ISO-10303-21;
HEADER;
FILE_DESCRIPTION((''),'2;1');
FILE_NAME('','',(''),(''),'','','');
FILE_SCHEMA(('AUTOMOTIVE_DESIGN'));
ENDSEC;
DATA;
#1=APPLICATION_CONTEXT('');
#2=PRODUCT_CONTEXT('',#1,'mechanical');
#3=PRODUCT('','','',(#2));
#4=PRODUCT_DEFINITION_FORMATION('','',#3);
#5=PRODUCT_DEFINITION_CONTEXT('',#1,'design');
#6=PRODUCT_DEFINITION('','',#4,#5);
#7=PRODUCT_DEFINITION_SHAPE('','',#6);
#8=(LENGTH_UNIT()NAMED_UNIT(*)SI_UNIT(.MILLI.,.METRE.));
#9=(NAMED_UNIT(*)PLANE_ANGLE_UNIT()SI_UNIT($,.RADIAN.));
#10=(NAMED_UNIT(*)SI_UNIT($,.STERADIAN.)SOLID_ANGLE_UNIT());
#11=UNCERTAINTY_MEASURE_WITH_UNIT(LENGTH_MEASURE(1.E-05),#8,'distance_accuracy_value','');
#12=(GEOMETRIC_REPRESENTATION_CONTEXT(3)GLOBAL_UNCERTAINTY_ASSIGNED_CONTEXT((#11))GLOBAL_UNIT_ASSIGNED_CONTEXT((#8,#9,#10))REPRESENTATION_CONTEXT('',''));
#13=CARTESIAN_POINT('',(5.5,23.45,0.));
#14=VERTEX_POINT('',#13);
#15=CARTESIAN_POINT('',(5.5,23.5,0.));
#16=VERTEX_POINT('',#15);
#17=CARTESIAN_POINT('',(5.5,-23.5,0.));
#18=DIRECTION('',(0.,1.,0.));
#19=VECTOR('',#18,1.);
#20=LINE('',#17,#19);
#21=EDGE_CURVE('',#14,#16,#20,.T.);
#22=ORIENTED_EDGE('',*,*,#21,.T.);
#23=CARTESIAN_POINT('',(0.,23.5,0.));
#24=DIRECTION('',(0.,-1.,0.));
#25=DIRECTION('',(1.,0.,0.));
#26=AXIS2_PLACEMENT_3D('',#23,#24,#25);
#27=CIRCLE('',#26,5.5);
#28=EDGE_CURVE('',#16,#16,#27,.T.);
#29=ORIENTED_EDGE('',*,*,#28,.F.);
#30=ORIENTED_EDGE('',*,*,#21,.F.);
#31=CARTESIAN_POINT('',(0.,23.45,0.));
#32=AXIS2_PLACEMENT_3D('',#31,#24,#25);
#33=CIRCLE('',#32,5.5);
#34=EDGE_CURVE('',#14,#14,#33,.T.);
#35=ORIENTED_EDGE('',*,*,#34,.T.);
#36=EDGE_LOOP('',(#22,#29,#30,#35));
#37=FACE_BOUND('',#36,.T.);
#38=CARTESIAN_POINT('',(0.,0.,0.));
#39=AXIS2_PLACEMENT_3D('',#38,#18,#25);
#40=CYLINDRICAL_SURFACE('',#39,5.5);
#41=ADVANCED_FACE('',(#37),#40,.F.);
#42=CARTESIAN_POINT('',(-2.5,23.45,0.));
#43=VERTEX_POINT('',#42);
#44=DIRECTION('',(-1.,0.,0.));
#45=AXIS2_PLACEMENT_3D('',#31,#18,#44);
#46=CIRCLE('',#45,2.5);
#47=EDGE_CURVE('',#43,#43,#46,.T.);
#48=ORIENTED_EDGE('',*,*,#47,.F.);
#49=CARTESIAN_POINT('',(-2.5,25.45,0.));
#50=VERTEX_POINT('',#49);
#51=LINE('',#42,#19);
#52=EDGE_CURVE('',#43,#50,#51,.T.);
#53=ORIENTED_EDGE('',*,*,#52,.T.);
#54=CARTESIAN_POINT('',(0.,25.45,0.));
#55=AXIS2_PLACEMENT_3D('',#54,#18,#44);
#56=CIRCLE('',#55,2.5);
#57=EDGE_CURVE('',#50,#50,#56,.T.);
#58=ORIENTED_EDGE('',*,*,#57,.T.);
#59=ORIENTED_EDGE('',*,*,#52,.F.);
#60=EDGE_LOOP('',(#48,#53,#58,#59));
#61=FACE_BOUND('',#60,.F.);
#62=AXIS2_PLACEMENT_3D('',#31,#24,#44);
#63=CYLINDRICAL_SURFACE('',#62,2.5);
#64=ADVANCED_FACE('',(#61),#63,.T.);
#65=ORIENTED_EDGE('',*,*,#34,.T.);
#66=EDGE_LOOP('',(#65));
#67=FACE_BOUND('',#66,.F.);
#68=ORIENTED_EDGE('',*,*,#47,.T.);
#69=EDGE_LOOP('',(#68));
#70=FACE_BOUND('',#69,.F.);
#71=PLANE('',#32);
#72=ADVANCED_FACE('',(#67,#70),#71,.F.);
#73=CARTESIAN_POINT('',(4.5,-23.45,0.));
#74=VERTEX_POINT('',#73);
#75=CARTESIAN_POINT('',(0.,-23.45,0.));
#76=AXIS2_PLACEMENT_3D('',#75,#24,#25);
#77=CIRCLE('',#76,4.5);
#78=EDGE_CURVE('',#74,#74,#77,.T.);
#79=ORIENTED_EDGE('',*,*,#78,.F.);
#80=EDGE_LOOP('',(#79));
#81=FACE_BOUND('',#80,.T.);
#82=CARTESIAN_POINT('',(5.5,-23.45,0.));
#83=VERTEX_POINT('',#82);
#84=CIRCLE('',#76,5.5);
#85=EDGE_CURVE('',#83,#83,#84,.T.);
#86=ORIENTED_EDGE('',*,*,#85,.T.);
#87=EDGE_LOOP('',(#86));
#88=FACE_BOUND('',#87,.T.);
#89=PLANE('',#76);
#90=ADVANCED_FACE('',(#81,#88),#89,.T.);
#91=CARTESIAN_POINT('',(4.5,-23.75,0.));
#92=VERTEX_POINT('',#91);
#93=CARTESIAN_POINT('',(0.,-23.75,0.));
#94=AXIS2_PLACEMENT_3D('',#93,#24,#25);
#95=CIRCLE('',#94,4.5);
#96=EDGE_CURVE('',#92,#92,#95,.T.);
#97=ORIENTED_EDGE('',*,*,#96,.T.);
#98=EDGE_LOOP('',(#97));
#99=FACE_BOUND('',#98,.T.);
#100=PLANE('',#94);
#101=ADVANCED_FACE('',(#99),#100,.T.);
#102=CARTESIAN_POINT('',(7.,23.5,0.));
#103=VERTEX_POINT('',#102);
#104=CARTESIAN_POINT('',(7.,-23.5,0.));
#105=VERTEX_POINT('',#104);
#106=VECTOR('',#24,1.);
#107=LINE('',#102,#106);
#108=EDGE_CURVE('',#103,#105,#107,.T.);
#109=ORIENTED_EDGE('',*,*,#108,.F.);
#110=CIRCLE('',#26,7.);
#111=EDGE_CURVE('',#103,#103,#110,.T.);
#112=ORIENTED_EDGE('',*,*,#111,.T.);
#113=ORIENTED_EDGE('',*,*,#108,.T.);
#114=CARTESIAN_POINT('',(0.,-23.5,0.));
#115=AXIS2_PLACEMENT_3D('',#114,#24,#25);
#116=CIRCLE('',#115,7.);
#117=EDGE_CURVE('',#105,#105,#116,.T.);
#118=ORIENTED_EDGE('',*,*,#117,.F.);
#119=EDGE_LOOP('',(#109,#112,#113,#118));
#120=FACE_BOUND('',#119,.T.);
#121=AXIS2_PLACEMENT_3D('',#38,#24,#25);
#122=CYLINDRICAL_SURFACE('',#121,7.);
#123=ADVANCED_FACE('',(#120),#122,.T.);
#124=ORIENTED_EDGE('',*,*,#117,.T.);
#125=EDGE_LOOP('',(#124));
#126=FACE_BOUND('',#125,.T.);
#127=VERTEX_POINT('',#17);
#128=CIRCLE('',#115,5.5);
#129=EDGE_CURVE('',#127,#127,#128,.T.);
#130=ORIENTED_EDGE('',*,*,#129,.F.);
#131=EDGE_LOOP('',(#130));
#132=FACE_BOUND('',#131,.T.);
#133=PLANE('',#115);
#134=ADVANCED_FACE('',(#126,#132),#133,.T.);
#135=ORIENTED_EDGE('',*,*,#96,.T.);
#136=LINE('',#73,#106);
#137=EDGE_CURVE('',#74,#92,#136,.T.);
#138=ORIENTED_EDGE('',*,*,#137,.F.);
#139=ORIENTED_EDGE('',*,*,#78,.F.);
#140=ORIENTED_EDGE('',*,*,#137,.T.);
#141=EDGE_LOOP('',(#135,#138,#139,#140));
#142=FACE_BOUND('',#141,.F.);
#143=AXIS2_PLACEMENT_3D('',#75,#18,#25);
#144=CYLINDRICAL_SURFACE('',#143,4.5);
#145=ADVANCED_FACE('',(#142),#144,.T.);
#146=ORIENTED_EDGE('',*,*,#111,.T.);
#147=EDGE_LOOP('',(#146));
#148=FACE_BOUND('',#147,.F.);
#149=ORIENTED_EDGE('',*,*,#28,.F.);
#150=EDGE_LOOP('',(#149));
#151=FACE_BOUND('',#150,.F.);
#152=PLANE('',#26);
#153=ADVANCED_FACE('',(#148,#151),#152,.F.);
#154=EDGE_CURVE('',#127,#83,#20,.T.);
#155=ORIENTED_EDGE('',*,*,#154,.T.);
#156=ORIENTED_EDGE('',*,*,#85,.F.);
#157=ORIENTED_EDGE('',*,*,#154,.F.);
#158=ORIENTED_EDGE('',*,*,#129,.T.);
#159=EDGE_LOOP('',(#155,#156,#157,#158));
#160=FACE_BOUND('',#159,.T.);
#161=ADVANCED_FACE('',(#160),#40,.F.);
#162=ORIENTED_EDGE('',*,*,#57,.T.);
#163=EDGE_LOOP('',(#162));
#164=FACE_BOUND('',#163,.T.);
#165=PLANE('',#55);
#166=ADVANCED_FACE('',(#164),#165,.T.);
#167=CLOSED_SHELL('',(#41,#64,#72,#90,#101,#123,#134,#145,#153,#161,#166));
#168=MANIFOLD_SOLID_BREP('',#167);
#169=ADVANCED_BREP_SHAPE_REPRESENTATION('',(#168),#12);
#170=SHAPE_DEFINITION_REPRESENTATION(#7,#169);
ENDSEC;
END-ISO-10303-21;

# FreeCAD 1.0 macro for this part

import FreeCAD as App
import Part
import Sketcher

V = App.Vector

doc = App.newDocument("Part")
body = doc.addObject("PartDesign::Body", "Body")

# Sketch on XZ plane
sketch1 = body.newObject("Sketcher::SketchObject", "Sketch")
sketch1.AttachmentSupport = (doc.getObject("XZ_Plane"), [""])
sketch1.MapMode = "FlatFace"
sketch1.addGeometry([
    Part.Circle(V(0, 0, 0), V(0, 0, 1), 7),
    Part.Circle(V(0, 0, 0), V(0, 0, 1), 5.5),
], False)
sketch1.addConstraint([
    Sketcher.Constraint("Coincident", 0, 3, -1, 1),
    Sketcher.Constraint("Coincident", 1, 3, -1, 1),
    Sketcher.Constraint("Diameter", 0, 14.0),
    Sketcher.Constraint("Diameter", 1, 11.0),
])
pad1 = body.newObject("PartDesign::Pad", "Pad")
pad1.Profile = sketch1
pad1.Length = 47
pad1.Midplane = True

# Sketch on XZ plane
sketch2 = body.newObject("Sketcher::SketchObject", "Sketch001")
sketch2.AttachmentSupport = (doc.getObject("XZ_Plane"), [""])
sketch2.MapMode = "FlatFace"
sketch2.addGeometry(Part.Circle(V(0, 0, 0), V(0, 0, 1), 5.5), False)
sketch2.addConstraint([
    Sketcher.Constraint("Coincident", 0, 3, -1, 1),
    Sketcher.Constraint("Diameter", 0, 11.0),
])
pad2 = body.newObject("PartDesign::Pad", "Pad001")
pad2.Profile = sketch2
pad2.Length = 46.9
pad2.Midplane = True

# Sketch on XZ plane
sketch3 = body.newObject("Sketcher::SketchObject", "Sketch002")
sketch3.AttachmentSupport = (doc.getObject("XZ_Plane"), [""])
sketch3.MapMode = "FlatFace"
sketch3.AttachmentOffset = App.Placement(V(0, 0, 23.45), App.Rotation())
sketch3.addGeometry(Part.Circle(V(0, 0, 0), V(0, 0, 1), 4.5), False)
sketch3.addConstraint([
    Sketcher.Constraint("Coincident", 0, 3, -1, 1),
    Sketcher.Constraint("Diameter", 0, 9.0),
])
pad3 = body.newObject("PartDesign::Pad", "Pad002")
pad3.Profile = sketch3
pad3.Length = 0.3

# Sketch on XZ plane
sketch4 = body.newObject("Sketcher::SketchObject", "Sketch003")
sketch4.AttachmentSupport = (doc.getObject("XZ_Plane"), [""])
sketch4.MapMode = "FlatFace"
sketch4.AttachmentOffset = App.Placement(V(0, 0, -23.45), App.Rotation())
sketch4.addGeometry(Part.Circle(V(0, 0, 0), V(0, 0, 1), 2.5), False)
sketch4.addConstraint([
    Sketcher.Constraint("Coincident", 0, 3, -1, 1),
    Sketcher.Constraint("Diameter", 0, 5.0),
])
pad4 = body.newObject("PartDesign::Pad", "Pad003")
pad4.Profile = sketch4
pad4.Length = 2
pad4.Reversed = True

doc.recompute()
